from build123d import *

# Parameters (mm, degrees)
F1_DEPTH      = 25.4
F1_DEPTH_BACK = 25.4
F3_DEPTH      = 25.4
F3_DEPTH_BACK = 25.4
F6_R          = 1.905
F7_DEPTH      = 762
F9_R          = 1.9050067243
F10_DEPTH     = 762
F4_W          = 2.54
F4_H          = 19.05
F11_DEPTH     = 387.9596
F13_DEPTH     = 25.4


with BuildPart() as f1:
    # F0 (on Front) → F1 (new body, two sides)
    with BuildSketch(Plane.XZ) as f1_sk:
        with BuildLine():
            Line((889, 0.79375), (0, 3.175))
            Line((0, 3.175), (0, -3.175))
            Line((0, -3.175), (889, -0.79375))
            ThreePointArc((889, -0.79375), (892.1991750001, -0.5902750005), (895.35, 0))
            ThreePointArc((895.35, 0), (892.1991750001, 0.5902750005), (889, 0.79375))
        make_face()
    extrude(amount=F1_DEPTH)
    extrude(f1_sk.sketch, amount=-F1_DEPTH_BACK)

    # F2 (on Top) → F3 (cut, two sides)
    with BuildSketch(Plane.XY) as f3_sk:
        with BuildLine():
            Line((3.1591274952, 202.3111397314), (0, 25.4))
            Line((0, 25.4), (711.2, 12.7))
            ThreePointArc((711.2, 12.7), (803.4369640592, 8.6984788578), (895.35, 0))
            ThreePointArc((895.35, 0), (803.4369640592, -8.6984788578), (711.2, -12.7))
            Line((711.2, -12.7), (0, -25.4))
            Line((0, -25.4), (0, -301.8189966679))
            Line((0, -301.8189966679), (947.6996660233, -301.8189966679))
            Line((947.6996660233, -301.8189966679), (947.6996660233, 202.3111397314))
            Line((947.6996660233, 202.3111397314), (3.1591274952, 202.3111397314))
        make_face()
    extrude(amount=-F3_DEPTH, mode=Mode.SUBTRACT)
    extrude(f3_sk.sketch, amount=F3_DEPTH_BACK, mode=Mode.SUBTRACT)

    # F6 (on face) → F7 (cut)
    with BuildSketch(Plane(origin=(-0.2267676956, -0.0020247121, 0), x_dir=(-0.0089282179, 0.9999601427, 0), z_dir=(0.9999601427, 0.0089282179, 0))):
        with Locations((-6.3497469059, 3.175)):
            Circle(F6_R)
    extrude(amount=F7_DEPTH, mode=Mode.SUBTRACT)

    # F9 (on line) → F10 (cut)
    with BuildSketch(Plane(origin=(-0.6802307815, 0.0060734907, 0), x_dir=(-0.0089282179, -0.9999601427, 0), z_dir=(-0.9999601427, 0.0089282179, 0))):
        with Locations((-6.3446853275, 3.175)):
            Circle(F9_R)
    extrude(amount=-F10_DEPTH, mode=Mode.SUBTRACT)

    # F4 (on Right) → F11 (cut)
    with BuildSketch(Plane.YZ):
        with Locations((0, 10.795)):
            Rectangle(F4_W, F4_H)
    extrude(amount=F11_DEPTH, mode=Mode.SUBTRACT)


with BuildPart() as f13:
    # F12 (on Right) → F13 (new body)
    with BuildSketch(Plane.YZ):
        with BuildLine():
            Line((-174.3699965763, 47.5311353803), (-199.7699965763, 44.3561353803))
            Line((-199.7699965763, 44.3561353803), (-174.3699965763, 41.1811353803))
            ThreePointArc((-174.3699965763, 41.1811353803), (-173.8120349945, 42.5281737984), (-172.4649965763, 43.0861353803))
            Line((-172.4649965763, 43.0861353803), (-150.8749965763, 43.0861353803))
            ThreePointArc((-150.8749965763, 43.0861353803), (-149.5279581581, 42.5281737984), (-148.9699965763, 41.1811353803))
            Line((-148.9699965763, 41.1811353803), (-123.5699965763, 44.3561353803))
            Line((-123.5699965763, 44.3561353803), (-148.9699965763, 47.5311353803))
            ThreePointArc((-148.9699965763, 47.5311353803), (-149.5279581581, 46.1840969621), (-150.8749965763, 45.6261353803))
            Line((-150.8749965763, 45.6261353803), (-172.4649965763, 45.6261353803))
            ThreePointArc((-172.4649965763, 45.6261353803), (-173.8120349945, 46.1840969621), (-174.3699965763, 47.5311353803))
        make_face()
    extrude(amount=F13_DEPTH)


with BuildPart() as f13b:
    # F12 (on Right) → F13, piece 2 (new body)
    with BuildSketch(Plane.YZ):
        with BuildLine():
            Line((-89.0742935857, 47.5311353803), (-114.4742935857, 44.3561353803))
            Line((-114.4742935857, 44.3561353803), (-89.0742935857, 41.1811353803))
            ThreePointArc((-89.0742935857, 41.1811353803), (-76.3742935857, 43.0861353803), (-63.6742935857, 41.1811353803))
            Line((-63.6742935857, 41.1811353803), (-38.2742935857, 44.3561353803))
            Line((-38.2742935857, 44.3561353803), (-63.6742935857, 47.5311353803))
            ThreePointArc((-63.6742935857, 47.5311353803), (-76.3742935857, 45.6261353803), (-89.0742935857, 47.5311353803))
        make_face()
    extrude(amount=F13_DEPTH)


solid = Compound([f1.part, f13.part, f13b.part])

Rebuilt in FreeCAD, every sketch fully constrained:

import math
import FreeCAD as App
import Part
import Sketcher

V = App.Vector
Q = App.Units.Quantity


def add_polygon(sketch, points):
    """Adds a closed chain of lines whose ends are joined by coincident constraints."""
    first, n = sketch.GeometryCount, len(points)
    for a, b in zip(points, points[1:] + points[:1]):
        sketch.addGeometry(Part.LineSegment(App.Vector(*a, 0), App.Vector(*b, 0)), False)
    for i in range(n):
        sketch.addConstraint(Sketcher.Constraint("Coincident", first + i, 2, first + (i + 1) % n, 1))

doc = App.newDocument("Part")
body = doc.addObject("PartDesign::Body", "Body")

sketch1 = body.newObject("Sketcher::SketchObject", "Sketch")
sketch1.AttachmentSupport = (doc.getObject("XZ_Plane"), [""])
sketch1.MapMode = "FlatFace"
sketch1.addGeometry(Part.LineSegment(V(889, 0.79375, 0), V(0, 3.175, 0)), False)
sketch1.addGeometry(Part.LineSegment(V(0, 3.175, 0), V(0, -3.175, 0)), False)
sketch1.addGeometry(Part.LineSegment(V(0, -3.175, 0), V(889, -0.79375, 0)), False)
sketch1.addGeometry(Part.ArcOfCircle(Part.Circle(V(888.929388, 25.56802, 0), V(0, 0, 1), 26.361865), math.radians(-89.84653), math.radians(-75.903438)), False)
sketch1.addGeometry(Part.ArcOfCircle(Part.Circle(V(888.929388, -25.56802, 0), V(0, 0, 1), 26.361865), math.radians(75.903438), math.radians(89.84653)), False)
sketch1.addConstraint(Sketcher.Constraint("Coincident", 0, 2, 1, 1))
sketch1.addConstraint(Sketcher.Constraint("Coincident", 1, 2, 2, 1))
sketch1.addConstraint(Sketcher.Constraint("Tangent", 2, 2, 3, 1))
sketch1.addConstraint(Sketcher.Constraint("Coincident", 3, 2, 4, 1))
sketch1.addConstraint(Sketcher.Constraint("Tangent", 4, 2, 0, 1))
sketch1.addConstraint(Sketcher.Constraint("Vertical", 1))
sketch1.addConstraint(Sketcher.Constraint("Equal", 3, 4))
sketch1.addConstraint(Sketcher.Constraint("Symmetric", 0, 2, 1, 2, -1, 1))
sketch1.addConstraint(Sketcher.Constraint("Symmetric", 3, 3, 4, 3, -1))
sketch1.addConstraint(Sketcher.Constraint("DistanceX", -1, 1, 2, 2, Q("35 in")))
sketch1.addConstraint(Sketcher.Constraint("DistanceY", 1, 2, 1, 1, Q("0.25 in")))
sketch1.addConstraint(Sketcher.Constraint("DistanceX", -1, 1, 3, 2, Q("35.25 in")))
sketch1.addConstraint(Sketcher.Constraint("DistanceY", 2, 2, -1, 1, Q("0.03125 in")))
pad1 = body.newObject("PartDesign::Pad", "Pad")
pad1.Profile = sketch1
pad1.Type = "TwoLengths"
pad1.Length = Q("1 in")
pad1.Length2 = Q("1 in")

sketch2 = body.newObject("Sketcher::SketchObject", "Sketch001")
sketch2.AttachmentSupport = (doc.getObject("XY_Plane"), [""])
sketch2.MapMode = "FlatFace"
sketch2.addGeometry(Part.LineSegment(V(3.159127, 202.31114, 0), V(0, 25.4, 0)), False)
sketch2.addGeometry(Part.LineSegment(V(0, 25.4, 0), V(711.2, 12.7, 0)), False)
sketch2.addGeometry(Part.ArcOfCircle(Part.Circle(V(678.876205, -1797.43253, 0), V(0, 0, 1), 1810.421112), math.radians(83.132658), math.radians(88.97697)), False)
sketch2.addGeometry(Part.ArcOfCircle(Part.Circle(V(678.876205, 1797.43253, 0), V(0, 0, 1), 1810.421112), math.radians(-88.97697), math.radians(-83.132658)), False)
sketch2.addGeometry(Part.LineSegment(V(711.2, -12.7, 0), V(0, -25.4, 0)), False)
sketch2.addGeometry(Part.LineSegment(V(0, -25.4, 0), V(0, -301.818997, 0)), False)
sketch2.addGeometry(Part.LineSegment(V(0, -301.818997, 0), V(947.699666, -301.818997, 0)), False)
sketch2.addGeometry(Part.LineSegment(V(947.699666, -301.818997, 0), V(947.699666, 202.31114, 0)), False)
sketch2.addGeometry(Part.LineSegment(V(947.699666, 202.31114, 0), V(3.159127, 202.31114, 0)), False)
sketch2.addConstraint(Sketcher.Constraint("Coincident", 0, 2, 1, 1))
sketch2.addConstraint(Sketcher.Constraint("Coincident", 1, 2, 2, 2))
sketch2.addConstraint(Sketcher.Constraint("Coincident", 2, 1, 3, 2))
sketch2.addConstraint(Sketcher.Constraint("Coincident", 3, 1, 4, 1))
sketch2.addConstraint(Sketcher.Constraint("Coincident", 4, 2, 5, 1))
sketch2.addConstraint(Sketcher.Constraint("Coincident", 5, 2, 6, 1))
sketch2.addConstraint(Sketcher.Constraint("Coincident", 6, 2, 7, 1))
sketch2.addConstraint(Sketcher.Constraint("Coincident", 7, 2, 8, 1))
sketch2.addConstraint(Sketcher.Constraint("Coincident", 8, 2, 0, 1))
sketch2.addConstraint(Sketcher.Constraint("Vertical", 5))
sketch2.addConstraint(Sketcher.Constraint("Horizontal", 6))
sketch2.addConstraint(Sketcher.Constraint("Vertical", 7))
sketch2.addConstraint(Sketcher.Constraint("Horizontal", 8))
sketch2.addConstraint(Sketcher.Constraint("PointOnObject", 0, 2, -2))
sketch2.addConstraint(Sketcher.Constraint("PointOnObject", 2, 1, -1))
sketch2.addConstraint(Sketcher.Constraint("PointOnObject", 4, 2, -2))
sketch2.addConstraint(Sketcher.Constraint("DistanceY", -1, 1, 0, 2, Q("1 in")))
sketch2.addConstraint(Sketcher.Constraint("DistanceX", -1, 1, 1, 2, Q("28 in")))
sketch2.addConstraint(Sketcher.Constraint("DistanceY", 4, 2, -1, 1, Q("1 in")))
sketch2.addConstraint(Sketcher.Constraint("DistanceY", 3, 1, 1, 2, Q("1 in")))
sketch2.addConstraint(Sketcher.Constraint("DistanceY", -1, 1, 1, 2, Q("0.5 in")))
sketch2.addConstraint(Sketcher.Constraint("Radius", 2, Q("1810.421112 mm")))
sketch2.addConstraint(Sketcher.Constraint("Radius", 3, Q("1810.421112 mm")))
sketch2.addConstraint(Sketcher.Constraint("DistanceX", 8, 2, 8, 1, Q("944.540539 mm")))
sketch2.addConstraint(Sketcher.Constraint("DistanceX", 6, 1, 6, 2, Q("947.699666 mm")))
sketch2.addConstraint(Sketcher.Constraint("DistanceY", 5, 2, 5, 1, Q("276.418997 mm")))
sketch2.addConstraint(Sketcher.Constraint("DistanceY", 7, 1, 7, 2, Q("504.130136 mm")))
sketch2.addConstraint(Sketcher.Constraint("DistanceY", 2, 3, -1, 1, Q("1797.43253 mm")))
sketch2.addConstraint(Sketcher.Constraint("DistanceY", -1, 1, 3, 3, Q("1797.43253 mm")))
pocket1 = body.newObject("PartDesign::Pocket", "Pocket")
pocket1.Profile = sketch2
pocket1.Type = "ThroughAll"
pocket1.Midplane = True

sketch3 = body.newObject("Sketcher::SketchObject", "Sketch002")
sketch3.Placement = App.Placement(V(-0.226768, -0.002025, 0), App.Rotation(V(-0.008928218, 0.999960143, 0), V(0, 0, 1.000000001), V(0.999960143, 0.008928218, 0), "ZXY"))
sketch3.addGeometry(Part.Circle(V(-6.349747, 3.175, 0), V(0, 0, 1), 1.905), False)
sketch3.addConstraint(Sketcher.Constraint("Diameter", 0, Q("0.15 in")))
sketch3.addConstraint(Sketcher.Constraint("DistanceY", -1, 1, 0, 3, Q("0.125 in")))
sketch3.addConstraint(Sketcher.Constraint("DistanceX", 0, 3, -1, 1, Q("6.349747 mm")))
pocket2 = body.newObject("PartDesign::Pocket", "Pocket001")
pocket2.Profile = sketch3
pocket2.Length = Q("30 in")
pocket2.Reversed = True

sketch4 = body.newObject("Sketcher::SketchObject", "Sketch003")
sketch4.Placement = App.Placement(V(-0.680231, 0.006073, 0), App.Rotation(V(-0.008928218, -0.999960143, 0), V(0, 0, 1.000000001), V(-0.999960143, 0.008928218, 0), "ZXY"))
sketch4.addGeometry(Part.Circle(V(-6.344685, 3.175, 0), V(0, 0, 1), 1.905007), False)
sketch4.addConstraint(Sketcher.Constraint("DistanceY", -1, 1, 0, 3, Q("0.125 in")))
sketch4.addConstraint(Sketcher.Constraint("Diameter", 0, Q("3.810013 mm")))
sketch4.addConstraint(Sketcher.Constraint("DistanceX", 0, 3, -1, 1, Q("6.344685 mm")))
pocket3 = body.newObject("PartDesign::Pocket", "Pocket002")
pocket3.Profile = sketch4
pocket3.Length = Q("30 in")

sketch5 = body.newObject("Sketcher::SketchObject", "Sketch004")
sketch5.AttachmentSupport = (doc.getObject("YZ_Plane"), [""])
sketch5.MapMode = "FlatFace"
add_polygon(sketch5, [(-1.27, 20.32), (-1.27, 1.27), (1.27, 1.27), (1.27, 20.32)])
sketch5.addConstraint(Sketcher.Constraint("Vertical", 0))
sketch5.addConstraint(Sketcher.Constraint("Horizontal", 1))
sketch5.addConstraint(Sketcher.Constraint("Vertical", 2))
sketch5.addConstraint(Sketcher.Constraint("Horizontal", 3))
sketch5.addConstraint(Sketcher.Constraint("DistanceX", 1, 1, 1, 2, Q("0.1 in")))
sketch5.addConstraint(Sketcher.Constraint("DistanceY", 0, 2, 0, 1, Q("0.75 in")))
sketch5.addConstraint(Sketcher.Constraint("DistanceY", -1, 1, 2, 2, Q("0.8 in")))
sketch5.addConstraint(Sketcher.Constraint("DistanceX", 0, 2, -1, 1, Q("0.05 in")))
pocket4 = body.newObject("PartDesign::Pocket", "Pocket003")
pocket4.Profile = sketch5
pocket4.Length = Q("15.274 in")
pocket4.Reversed = True
body2 = doc.addObject("PartDesign::Body", "Body001")

sketch6 = body2.newObject("Sketcher::SketchObject", "Sketch005")
sketch6.AttachmentSupport = (doc.getObject("YZ_Plane001"), [""])
sketch6.MapMode = "FlatFace"
sketch6.addGeometry(Part.LineSegment(V(-174.369997, 47.531135, 0), V(-199.769997, 44.356135, 0)), False)
sketch6.addGeometry(Part.LineSegment(V(-199.769997, 44.356135, 0), V(-174.369997, 41.181135, 0)), False)
sketch6.addGeometry(Part.ArcOfCircle(Part.Circle(V(-172.464997, 41.181135, 0), V(0, 0, 1), 1.905), math.radians(90), math.radians(180)), False)
sketch6.addGeometry(Part.LineSegment(V(-172.464997, 43.086135, 0), V(-150.874997, 43.086135, 0)), False)
sketch6.addGeometry(Part.ArcOfCircle(Part.Circle(V(-150.874997, 41.181135, 0), V(0, 0, 1), 1.905), math.radians(0), math.radians(90)), False)
sketch6.addGeometry(Part.LineSegment(V(-148.969997, 41.181135, 0), V(-123.569997, 44.356135, 0)), False)
sketch6.addGeometry(Part.LineSegment(V(-123.569997, 44.356135, 0), V(-148.969997, 47.531135, 0)), False)
sketch6.addGeometry(Part.ArcOfCircle(Part.Circle(V(-150.874997, 47.531135, 0), V(0, 0, 1), 1.905), math.radians(-90), math.radians(0)), False)
sketch6.addGeometry(Part.LineSegment(V(-150.874997, 45.626135, 0), V(-172.464997, 45.626135, 0)), False)
sketch6.addGeometry(Part.ArcOfCircle(Part.Circle(V(-172.464997, 47.531135, 0), V(0, 0, 1), 1.905), math.radians(180), math.radians(270)), False)
sketch6.addConstraint(Sketcher.Constraint("Coincident", 0, 2, 1, 1))
sketch6.addConstraint(Sketcher.Constraint("Coincident", 1, 2, 2, 2))
sketch6.addConstraint(Sketcher.Constraint("Tangent", 2, 1, 3, 1))
sketch6.addConstraint(Sketcher.Constraint("Tangent", 3, 2, 4, 2))
sketch6.addConstraint(Sketcher.Constraint("Coincident", 4, 1, 5, 1))
sketch6.addConstraint(Sketcher.Constraint("Coincident", 5, 2, 6, 1))
sketch6.addConstraint(Sketcher.Constraint("Coincident", 6, 2, 7, 2))
sketch6.addConstraint(Sketcher.Constraint("Tangent", 7, 1, 8, 1))
sketch6.addConstraint(Sketcher.Constraint("Tangent", 8, 2, 9, 2))
sketch6.addConstraint(Sketcher.Constraint("Coincident", 9, 1, 0, 1))
sketch6.addConstraint(Sketcher.Constraint("Horizontal", 3))
sketch6.addConstraint(Sketcher.Constraint("Horizontal", 8))
sketch6.addConstraint(Sketcher.Constraint("Equal", 2, 4))
sketch6.addConstraint(Sketcher.Constraint("Equal", 4, 7))
sketch6.addConstraint(Sketcher.Constraint("Equal", 7, 9))
sketch6.addConstraint(Sketcher.Constraint("Parallel", 0, 5))
sketch6.addConstraint(Sketcher.Constraint("Parallel", 1, 6))
sketch6.addConstraint(Sketcher.Constraint("Horizontal", 4, 3, 1, 2))
sketch6.addConstraint(Sketcher.Constraint("Horizontal", 1, 2, 4, 1))
sketch6.addConstraint(Sketcher.Constraint("Horizontal", 0, 2, 5, 2))
sketch6.addConstraint(Sketcher.Constraint("Horizontal", 9, 3, 6, 2))
sketch6.addConstraint(Sketcher.Constraint("Horizontal", 6, 2, 9, 1))
sketch6.addConstraint(Sketcher.Constraint("Vertical", 4, 3, 7, 3))
sketch6.addConstraint(Sketcher.Constraint("Vertical", 2, 3, 9, 3))
sketch6.addConstraint(Sketcher.Constraint("Radius", 2, Q("0.075 in")))
sketch6.addConstraint(Sketcher.Constraint("DistanceX", 0, 2, 1, 2, Q("1 in")))
sketch6.addConstraint(Sketcher.Constraint("DistanceX", 3, 1, 3, 2, Q("0.85 in")))
sketch6.addConstraint(Sketcher.Constraint("DistanceY", 3, 2, 7, 1, Q("0.1 in")))
sketch6.addConstraint(Sketcher.Constraint("DistanceX", 2, 3, -1, 1, Q("172.464997 mm")))
sketch6.addConstraint(Sketcher.Constraint("DistanceY", -1, 1, 2, 3, Q("41.181135 mm")))
pad2 = body2.newObject("PartDesign::Pad", "Pad001")
pad2.Profile = sketch6
pad2.Length = Q("1 in")
body3 = doc.addObject("PartDesign::Body", "Body002")

sketch7 = body3.newObject("Sketcher::SketchObject", "Sketch006")
sketch7.AttachmentSupport = (doc.getObject("YZ_Plane002"), [""])
sketch7.MapMode = "FlatFace"
sketch7.addGeometry(Part.LineSegment(V(-89.074294, 47.531135, 0), V(-114.474294, 44.356135, 0)), False)
sketch7.addGeometry(Part.LineSegment(V(-114.474294, 44.356135, 0), V(-89.074294, 41.181135, 0)), False)
sketch7.addGeometry(Part.ArcOfCircle(Part.Circle(V(-76.374294, -0.199698, 0), V(0, 0, 1), 43.285833), math.radians(72.938469), math.radians(107.061531)), False)
sketch7.addGeometry(Part.LineSegment(V(-63.674294, 41.181135, 0), V(-38.274294, 44.356135, 0)), False)
sketch7.addGeometry(Part.LineSegment(V(-38.274294, 44.356135, 0), V(-63.674294, 47.531135, 0)), False)
sketch7.addGeometry(Part.ArcOfCircle(Part.Circle(V(-76.374294, 88.911969, 0), V(0, 0, 1), 43.285833), math.radians(-107.061531), math.radians(-72.938469)), False)
sketch7.addConstraint(Sketcher.Constraint("Coincident", 0, 2, 1, 1))
sketch7.addConstraint(Sketcher.Constraint("Coincident", 1, 2, 2, 2))
sketch7.addConstraint(Sketcher.Constraint("Coincident", 2, 1, 3, 1))
sketch7.addConstraint(Sketcher.Constraint("Coincident", 3, 2, 4, 1))
sketch7.addConstraint(Sketcher.Constraint("Coincident", 4, 2, 5, 2))
sketch7.addConstraint(Sketcher.Constraint("Coincident", 5, 1, 0, 1))
sketch7.addConstraint(Sketcher.Constraint("Equal", 2, 5))
sketch7.addConstraint(Sketcher.Constraint("Parallel", 0, 3))
sketch7.addConstraint(Sketcher.Constraint("Parallel", 1, 4))
sketch7.addConstraint(Sketcher.Constraint("Horizontal", 1, 2, 2, 1))
sketch7.addConstraint(Sketcher.Constraint("Horizontal", 0, 2, 3, 2))
sketch7.addConstraint(Sketcher.Constraint("Horizontal", 4, 2, 5, 1))
sketch7.addConstraint(Sketcher.Constraint("Vertical", 2, 3, 5, 3))
sketch7.addConstraint(Sketcher.Constraint("Vertical", 2, 1, 4, 2))
sketch7.addConstraint(Sketcher.Constraint("DistanceX", 0, 2, 1, 2, Q("1 in")))
sketch7.addConstraint(Sketcher.Constraint("DistanceX", 1, 2, 2, 1, Q("1 in")))
sketch7.addConstraint(Sketcher.Constraint("DistanceY", 2, 1, 4, 2, Q("0.25 in")))
sketch7.addConstraint(Sketcher.Constraint("Radius", 2, Q("43.285833 mm")))
sketch7.addConstraint(Sketcher.Constraint("DistanceY", -1, 1, 5, 3, Q("88.911969 mm")))
sketch7.addConstraint(Sketcher.Constraint("DistanceX", 2, 3, -1, 1, Q("76.374294 mm")))
pad3 = body3.newObject("PartDesign::Pad", "Pad002")
pad3.Profile = sketch7
pad3.Length = Q("1 in")

doc.recompute()
